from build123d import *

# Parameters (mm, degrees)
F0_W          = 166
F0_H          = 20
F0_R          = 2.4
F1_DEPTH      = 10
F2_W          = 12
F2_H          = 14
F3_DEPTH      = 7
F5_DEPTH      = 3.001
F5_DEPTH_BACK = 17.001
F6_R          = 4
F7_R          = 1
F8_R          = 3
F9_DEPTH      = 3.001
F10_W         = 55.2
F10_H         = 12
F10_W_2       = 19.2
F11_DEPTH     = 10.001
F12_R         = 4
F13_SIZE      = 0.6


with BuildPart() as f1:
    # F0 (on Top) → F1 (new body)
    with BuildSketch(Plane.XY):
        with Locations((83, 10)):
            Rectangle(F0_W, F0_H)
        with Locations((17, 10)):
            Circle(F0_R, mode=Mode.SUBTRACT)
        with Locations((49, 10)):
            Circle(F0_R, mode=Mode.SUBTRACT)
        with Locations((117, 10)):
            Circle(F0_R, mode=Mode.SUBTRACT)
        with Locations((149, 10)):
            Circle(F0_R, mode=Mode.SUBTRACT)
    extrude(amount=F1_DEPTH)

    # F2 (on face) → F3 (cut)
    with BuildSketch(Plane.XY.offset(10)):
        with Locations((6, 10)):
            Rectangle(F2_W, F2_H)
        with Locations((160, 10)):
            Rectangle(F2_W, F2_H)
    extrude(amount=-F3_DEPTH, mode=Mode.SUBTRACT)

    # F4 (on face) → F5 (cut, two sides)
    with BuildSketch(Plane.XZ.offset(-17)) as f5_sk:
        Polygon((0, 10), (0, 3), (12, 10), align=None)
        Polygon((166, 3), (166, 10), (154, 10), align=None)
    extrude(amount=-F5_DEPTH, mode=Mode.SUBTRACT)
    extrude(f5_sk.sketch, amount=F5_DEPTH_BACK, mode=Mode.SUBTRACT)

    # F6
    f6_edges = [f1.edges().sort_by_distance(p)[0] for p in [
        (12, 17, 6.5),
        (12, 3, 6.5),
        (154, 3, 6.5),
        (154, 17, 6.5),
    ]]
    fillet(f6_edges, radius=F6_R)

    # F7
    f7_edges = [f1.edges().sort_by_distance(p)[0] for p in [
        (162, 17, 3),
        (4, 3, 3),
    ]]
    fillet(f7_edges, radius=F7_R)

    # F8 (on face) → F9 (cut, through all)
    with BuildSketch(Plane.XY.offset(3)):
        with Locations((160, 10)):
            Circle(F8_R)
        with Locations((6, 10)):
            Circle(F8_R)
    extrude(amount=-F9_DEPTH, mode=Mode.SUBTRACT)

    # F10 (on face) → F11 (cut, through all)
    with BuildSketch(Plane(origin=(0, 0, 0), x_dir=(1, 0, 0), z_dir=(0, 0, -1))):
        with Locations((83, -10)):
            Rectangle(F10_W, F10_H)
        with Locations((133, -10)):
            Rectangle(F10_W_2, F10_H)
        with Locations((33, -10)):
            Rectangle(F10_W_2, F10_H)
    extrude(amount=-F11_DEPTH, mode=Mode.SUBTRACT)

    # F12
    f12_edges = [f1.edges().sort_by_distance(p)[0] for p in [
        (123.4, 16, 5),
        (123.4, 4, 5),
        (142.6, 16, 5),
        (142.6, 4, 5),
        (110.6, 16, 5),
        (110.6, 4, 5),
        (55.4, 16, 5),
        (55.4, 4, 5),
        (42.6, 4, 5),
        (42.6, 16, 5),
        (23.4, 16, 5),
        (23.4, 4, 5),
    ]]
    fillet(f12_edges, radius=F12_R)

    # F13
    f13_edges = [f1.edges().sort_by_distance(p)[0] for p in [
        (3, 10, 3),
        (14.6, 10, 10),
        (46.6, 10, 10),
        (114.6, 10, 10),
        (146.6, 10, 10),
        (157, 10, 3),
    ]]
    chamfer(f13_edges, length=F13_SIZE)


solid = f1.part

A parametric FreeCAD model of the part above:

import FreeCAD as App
import Part
import Sketcher
Q = App.Units.Quantity


def edges_at(feature, points):
    """Names of the edges that pass closest to the given points."""
    edges = feature.Shape.Edges
    near = lambda p: min(range(len(edges)), key=lambda i: edges[i].distToShape(Part.Vertex(*p))[0])
    return sorted({f"Edge{near(p) + 1}" for p in points})


def add_polygon(sketch, points):
    """Adds a closed chain of lines whose ends are joined by coincident constraints."""
    first, n = sketch.GeometryCount, len(points)
    for a, b in zip(points, points[1:] + points[:1]):
        sketch.addGeometry(Part.LineSegment(App.Vector(*a, 0), App.Vector(*b, 0)), False)
    for i in range(n):
        sketch.addConstraint(Sketcher.Constraint("Coincident", first + i, 2, first + (i + 1) % n, 1))

doc = App.newDocument("Part")
params = doc.addObject("Spreadsheet::Sheet", "Params")
for row, (alias, value) in enumerate([
    ("sketch1_diameter", "4.8 mm"),
    ("sketch1_width", "166 mm"),
    ("sketch1_height", "20 mm"),
    ("pad1_length", "10 mm"),
    ("sketch2_width", "12 mm"),
    ("sketch2_height", "14 mm"),
    ("pocket1_length", "7 mm"),
    ("sketch3_width", "12 mm"),
    ("sketch3_height", "7 mm"),
    ("fillet_radius", "4 mm"),
    ("fillet2_radius", "1 mm"),
    ("sketch4_diameter", "6 mm"),
    ("sketch5_height", "12 mm"),
    ("sketch5_width", "55.2 mm"),
    ("sketch5_width2", "19.2 mm"),
    ("fillet3_radius", "4 mm"),
    ("chamfer_size", "0.6 mm"),
], start=1):
    params.set(f"A{row}", alias)
    params.set(f"B{row}", "=" + value)
    params.setAlias(f"B{row}", alias)

body = doc.addObject("PartDesign::Body", "Body")

# Sketch on XY plane
sketch1 = doc.addObject("Sketcher::SketchObject", "Sketch")
body.addObject(sketch1)
sketch1.AttachmentSupport = (doc.XY_Plane, [""])
sketch1.MapMode = "FlatFace"
add_polygon(sketch1, [(0, 20), (0, 0), (166, 0), (166, 20)])  # lines 0-3
sketch1.addGeometry(Part.Circle(App.Vector(17, 10, 0), App.Vector(0, 0, 1), 2.4), False)  # 4
sketch1.addGeometry(Part.Circle(App.Vector(49, 10, 0), App.Vector(0, 0, 1), 2.4), False)  # 5
sketch1.addGeometry(Part.Circle(App.Vector(117, 10, 0), App.Vector(0, 0, 1), 2.4), False)  # 6
sketch1.addGeometry(Part.Circle(App.Vector(149, 10, 0), App.Vector(0, 0, 1), 2.4), False)  # 7
sketch1.addConstraint([
    Sketcher.Constraint("Vertical", 0),
    Sketcher.Constraint("Horizontal", 1),
    Sketcher.Constraint("Vertical", 2),
    Sketcher.Constraint("Horizontal", 3),
    Sketcher.Constraint("Coincident", 0, 2, -1, 1),
    Sketcher.Constraint("Equal", 4, 5),
    Sketcher.Constraint("Equal", 5, 6),
    Sketcher.Constraint("Equal", 6, 7),
    Sketcher.Constraint("Horizontal", 4, 3, 5, 3),
    Sketcher.Constraint("Horizontal", 5, 3, 6, 3),
    Sketcher.Constraint("Horizontal", 6, 3, 7, 3),
    Sketcher.Constraint("Diameter", 4, Q("4.8 mm")),
    Sketcher.Constraint("DistanceX", 1, 1, 1, 2, Q("166 mm")),
    Sketcher.Constraint("DistanceY", 0, 2, 0, 1, Q("20 mm")),
    Sketcher.Constraint("DistanceX", -1, 1, 4, 3, Q("17 mm")),
    Sketcher.Constraint("DistanceY", -1, 1, 4, 3, Q("10 mm")),
    Sketcher.Constraint("DistanceX", -1, 1, 5, 3, Q("49 mm")),
    Sketcher.Constraint("DistanceX", -1, 1, 6, 3, Q("117 mm")),
    Sketcher.Constraint("DistanceX", -1, 1, 7, 3, Q("149 mm")),
])
sketch1.setExpression("Constraints[15]", "Params.sketch1_diameter")
sketch1.setExpression("Constraints[16]", "Params.sketch1_width")
sketch1.setExpression("Constraints[17]", "Params.sketch1_height")
pad1 = doc.addObject("PartDesign::Pad", "Pad")
body.addObject(pad1)
pad1.Profile = sketch1
pad1.setExpression("Length", "Params.pad1_length")

# Sketch on XY plane
sketch2 = doc.addObject("Sketcher::SketchObject", "Sketch001")
body.addObject(sketch2)
sketch2.AttachmentSupport = (doc.XY_Plane, [""])
sketch2.MapMode = "FlatFace"
sketch2.AttachmentOffset = App.Placement(App.Vector(0, 0, 10), App.Rotation())
add_polygon(sketch2, [(0, 17), (0, 3), (12, 3), (12, 17)])  # lines 0-3
add_polygon(sketch2, [(154, 17), (154, 3), (166, 3), (166, 17)])  # lines 4-7
sketch2.addConstraint([
    Sketcher.Constraint("Vertical", 0),
    Sketcher.Constraint("Horizontal", 1),
    Sketcher.Constraint("Vertical", 2),
    Sketcher.Constraint("Horizontal", 3),
    Sketcher.Constraint("Vertical", 4),
    Sketcher.Constraint("Horizontal", 5),
    Sketcher.Constraint("Vertical", 6),
    Sketcher.Constraint("Horizontal", 7),
    Sketcher.Constraint("PointOnObject", 0, 2, -2),
    Sketcher.Constraint("Horizontal", 1, 2, 4, 2),
    Sketcher.Constraint("Horizontal", 3, 2, 6, 2),
    Sketcher.Constraint("Equal", 3, 5),
    Sketcher.Constraint("DistanceX", 1, 1, 1, 2, Q("12 mm")),
    Sketcher.Constraint("DistanceY", 0, 2, 0, 1, Q("14 mm")),
    Sketcher.Constraint("DistanceY", -1, 1, 0, 2, Q("3 mm")),
    Sketcher.Constraint("DistanceX", -1, 1, 4, 2, Q("154 mm")),
])
sketch2.setExpression("Constraints[20]", "Params.sketch2_width")
sketch2.setExpression("Constraints[21]", "Params.sketch2_height")
pocket1 = doc.addObject("PartDesign::Pocket", "Pocket")
body.addObject(pocket1)
pocket1.Profile = sketch2
pocket1.setExpression("Length", "Params.pocket1_length")

# Sketch on XZ plane
sketch3 = doc.addObject("Sketcher::SketchObject", "Sketch002")
body.addObject(sketch3)
sketch3.AttachmentSupport = (doc.XZ_Plane, [""])
sketch3.MapMode = "FlatFace"
sketch3.AttachmentOffset = App.Placement(App.Vector(0, 0, -17), App.Rotation())
add_polygon(sketch3, [(0, 10), (0, 3), (12, 10)])  # lines 0-2
add_polygon(sketch3, [(166, 3), (166, 10), (154, 10)])  # lines 3-5
sketch3.addConstraint([
    Sketcher.Constraint("Vertical", 0),
    Sketcher.Constraint("Horizontal", 2),
    Sketcher.Constraint("Vertical", 3),
    Sketcher.Constraint("Horizontal", 4),
    Sketcher.Constraint("PointOnObject", 0, 2, -2),
    Sketcher.Constraint("Horizontal", 2, 2, 3, 2),
    Sketcher.Constraint("Horizontal", 0, 2, 5, 2),
    Sketcher.Constraint("Equal", 2, 4),
    Sketcher.Constraint("DistanceX", 2, 2, 2, 1, Q("12 mm")),
    Sketcher.Constraint("DistanceY", 0, 2, 0, 1, Q("7 mm")),
    Sketcher.Constraint("DistanceY", -1, 1, 0, 2, Q("3 mm")),
    Sketcher.Constraint("DistanceX", -1, 1, 3, 2, Q("166 mm")),
])
sketch3.setExpression("Constraints[14]", "Params.sketch3_width")
sketch3.setExpression("Constraints[15]", "Params.sketch3_height")
pocket2 = doc.addObject("PartDesign::Pocket", "Pocket001")
body.addObject(pocket2)
pocket2.Profile = sketch3
pocket2.Type = "ThroughAll"
pocket2.Midplane = True
doc.recompute()

fillet = doc.addObject("PartDesign::Fillet", "Fillet")
body.addObject(fillet)
fillet.Base = (pocket2, edges_at(pocket2, [
    (12, 17, 6.5),
    (12, 3, 6.5),
    (154, 3, 6.5),
    (154, 17, 6.5),
]))
fillet.setExpression("Radius", "Params.fillet_radius")
doc.recompute()

fillet2 = doc.addObject("PartDesign::Fillet", "Fillet001")
body.addObject(fillet2)
fillet2.Base = (fillet, edges_at(fillet, [(162, 17, 3), (4, 3, 3)]))
fillet2.setExpression("Radius", "Params.fillet2_radius")

# Sketch on XY plane
sketch4 = doc.addObject("Sketcher::SketchObject", "Sketch003")
body.addObject(sketch4)
sketch4.AttachmentSupport = (doc.XY_Plane, [""])
sketch4.MapMode = "FlatFace"
sketch4.AttachmentOffset = App.Placement(App.Vector(0, 0, 3), App.Rotation())
sketch4.addGeometry([
    Part.Circle(App.Vector(160, 10, 0), App.Vector(0, 0, 1), 3),
    Part.Circle(App.Vector(6, 10, 0), App.Vector(0, 0, 1), 3),
], False)
sketch4.addConstraint([
    Sketcher.Constraint("Equal", 0, 1),
    Sketcher.Constraint("Horizontal", 0, 3, 1, 3),
    Sketcher.Constraint("Diameter", 0, Q("6 mm")),
    Sketcher.Constraint("DistanceX", -1, 1, 0, 3, Q("160 mm")),
    Sketcher.Constraint("DistanceY", -1, 1, 0, 3, Q("10 mm")),
    Sketcher.Constraint("DistanceX", -1, 1, 1, 3, Q("6 mm")),
])
sketch4.setExpression("Constraints[2]", "Params.sketch4_diameter")
pocket3 = doc.addObject("PartDesign::Pocket", "Pocket002")
body.addObject(pocket3)
pocket3.Profile = sketch4
pocket3.Type = "ThroughAll"

# Sketch on XY plane
sketch5 = doc.addObject("Sketcher::SketchObject", "Sketch004")
body.addObject(sketch5)
sketch5.AttachmentSupport = (doc.XY_Plane, [""])
sketch5.MapMode = "FlatFace"
add_polygon(sketch5, [(55, 4), (55, 16), (111, 16), (111, 4)])  # lines 0-3
add_polygon(sketch5, [(123, 4), (123, 16), (143, 16), (143, 4)])  # lines 4-7
add_polygon(sketch5, [(23, 4), (23, 16), (43, 16), (43, 4)])  # lines 8-11
sketch5.addConstraint([
    Sketcher.Constraint("Vertical", 0),
    Sketcher.Constraint("Horizontal", 1),
    Sketcher.Constraint("Vertical", 2),
    Sketcher.Constraint("Horizontal", 3),
    Sketcher.Constraint("Vertical", 4),
    Sketcher.Constraint("Horizontal", 5),
    Sketcher.Constraint("Vertical", 6),
    Sketcher.Constraint("Horizontal", 7),
    Sketcher.Constraint("Vertical", 8),
    Sketcher.Constraint("Horizontal", 9),
    Sketcher.Constraint("Vertical", 10),
    Sketcher.Constraint("Horizontal", 11),
    Sketcher.Constraint("Horizontal", 1, 2, 4, 2),
    Sketcher.Constraint("Horizontal", 3, 2, 6, 2),
    Sketcher.Constraint("Horizontal", 5, 2, 8, 2),
    Sketcher.Constraint("Horizontal", 7, 2, 10, 2),
    Sketcher.Constraint("Equal", 7, 9),
    Sketcher.Constraint("DistanceY", 0, 1, 0, 2, Q("12 mm")),
    Sketcher.Constraint("DistanceX", 1, 1, 1, 2, Q("55.2 mm")),
    Sketcher.Constraint("DistanceX", 5, 1, 5, 2, Q("19.2 mm")),
    Sketcher.Constraint("DistanceY", -1, 1, 0, 2, Q("16 mm")),
    Sketcher.Constraint("DistanceX", 0, 2, 4, 2, Q("68 mm")),
    Sketcher.Constraint("DistanceX", 8, 2, 0, 2, Q("32 mm")),
    Sketcher.Constraint("DistanceX", -1, 1, 0, 2, Q("55.4 mm")),
])
sketch5.setExpression("Constraints[29]", "Params.sketch5_height")
sketch5.setExpression("Constraints[30]", "Params.sketch5_width")
sketch5.setExpression("Constraints[31]", "Params.sketch5_width2")
pocket4 = doc.addObject("PartDesign::Pocket", "Pocket003")
body.addObject(pocket4)
pocket4.Profile = sketch5
pocket4.Type = "ThroughAll"
pocket4.Reversed = True
doc.recompute()

fillet3 = doc.addObject("PartDesign::Fillet", "Fillet002")
body.addObject(fillet3)
fillet3.Base = (pocket4, edges_at(pocket4, [
    (123.4, 16, 5),
    (123.4, 4, 5),
    (142.6, 16, 5),
    (142.6, 4, 5),
    (110.6, 16, 5),
    (110.6, 4, 5),
    (55.4, 16, 5),
    (55.4, 4, 5),
    (42.6, 4, 5),
    (42.6, 16, 5),
    (23.4, 16, 5),
    (23.4, 4, 5),
]))
fillet3.setExpression("Radius", "Params.fillet3_radius")
doc.recompute()

chamfer = doc.addObject("PartDesign::Chamfer", "Chamfer")
body.addObject(chamfer)
chamfer.Base = (fillet3, edges_at(fillet3, [
    (3, 10, 3),
    (14.6, 10, 10),
    (46.6, 10, 10),
    (114.6, 10, 10),
    (146.6, 10, 10),
    (157, 10, 3),
]))
chamfer.setExpression("Size", "Params.chamfer_size")

doc.recompute()
